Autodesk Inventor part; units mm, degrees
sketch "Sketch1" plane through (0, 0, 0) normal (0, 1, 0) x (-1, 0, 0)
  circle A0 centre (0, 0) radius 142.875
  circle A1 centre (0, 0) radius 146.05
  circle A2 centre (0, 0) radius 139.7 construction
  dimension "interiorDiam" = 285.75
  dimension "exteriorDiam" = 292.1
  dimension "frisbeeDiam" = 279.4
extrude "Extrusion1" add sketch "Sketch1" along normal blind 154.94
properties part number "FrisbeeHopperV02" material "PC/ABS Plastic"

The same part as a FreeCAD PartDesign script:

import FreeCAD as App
import Part
import Sketcher
from FreeCAD import Vector
Q = App.Units.Quantity

doc = App.newDocument("Part")
body = doc.addObject("PartDesign::Body", "Body")

# Sketch on XZ plane
sketch1 = body.newObject("Sketcher::SketchObject", "Sketch")
sketch1.AttachmentSupport = (doc.getObject("XZ_Plane"), [""])
sketch1.MapMode = "FlatFace"
sketch1.addGeometry([
    Part.Circle(Vector(0, 0, 0), Vector(0, 0, 1), 146),
    Part.Circle(Vector(0, 0, 0), Vector(0, 0, 1), 143),
], False)
sketch1.addConstraint([
    Sketcher.Constraint("Coincident", 0, 3, -1, 1),
    Sketcher.Constraint("Coincident", 1, 3, -1, 1),
    Sketcher.Constraint("Diameter", 0, Q("11.5 in")),
    Sketcher.Constraint("Diameter", 1, Q("11.25 in")),
])
pad1 = body.newObject("PartDesign::Pad", "Pad")
pad1.Profile = sketch1
pad1.Length = Q("6.1 in")
pad1.Reversed = True

doc.recompute()
